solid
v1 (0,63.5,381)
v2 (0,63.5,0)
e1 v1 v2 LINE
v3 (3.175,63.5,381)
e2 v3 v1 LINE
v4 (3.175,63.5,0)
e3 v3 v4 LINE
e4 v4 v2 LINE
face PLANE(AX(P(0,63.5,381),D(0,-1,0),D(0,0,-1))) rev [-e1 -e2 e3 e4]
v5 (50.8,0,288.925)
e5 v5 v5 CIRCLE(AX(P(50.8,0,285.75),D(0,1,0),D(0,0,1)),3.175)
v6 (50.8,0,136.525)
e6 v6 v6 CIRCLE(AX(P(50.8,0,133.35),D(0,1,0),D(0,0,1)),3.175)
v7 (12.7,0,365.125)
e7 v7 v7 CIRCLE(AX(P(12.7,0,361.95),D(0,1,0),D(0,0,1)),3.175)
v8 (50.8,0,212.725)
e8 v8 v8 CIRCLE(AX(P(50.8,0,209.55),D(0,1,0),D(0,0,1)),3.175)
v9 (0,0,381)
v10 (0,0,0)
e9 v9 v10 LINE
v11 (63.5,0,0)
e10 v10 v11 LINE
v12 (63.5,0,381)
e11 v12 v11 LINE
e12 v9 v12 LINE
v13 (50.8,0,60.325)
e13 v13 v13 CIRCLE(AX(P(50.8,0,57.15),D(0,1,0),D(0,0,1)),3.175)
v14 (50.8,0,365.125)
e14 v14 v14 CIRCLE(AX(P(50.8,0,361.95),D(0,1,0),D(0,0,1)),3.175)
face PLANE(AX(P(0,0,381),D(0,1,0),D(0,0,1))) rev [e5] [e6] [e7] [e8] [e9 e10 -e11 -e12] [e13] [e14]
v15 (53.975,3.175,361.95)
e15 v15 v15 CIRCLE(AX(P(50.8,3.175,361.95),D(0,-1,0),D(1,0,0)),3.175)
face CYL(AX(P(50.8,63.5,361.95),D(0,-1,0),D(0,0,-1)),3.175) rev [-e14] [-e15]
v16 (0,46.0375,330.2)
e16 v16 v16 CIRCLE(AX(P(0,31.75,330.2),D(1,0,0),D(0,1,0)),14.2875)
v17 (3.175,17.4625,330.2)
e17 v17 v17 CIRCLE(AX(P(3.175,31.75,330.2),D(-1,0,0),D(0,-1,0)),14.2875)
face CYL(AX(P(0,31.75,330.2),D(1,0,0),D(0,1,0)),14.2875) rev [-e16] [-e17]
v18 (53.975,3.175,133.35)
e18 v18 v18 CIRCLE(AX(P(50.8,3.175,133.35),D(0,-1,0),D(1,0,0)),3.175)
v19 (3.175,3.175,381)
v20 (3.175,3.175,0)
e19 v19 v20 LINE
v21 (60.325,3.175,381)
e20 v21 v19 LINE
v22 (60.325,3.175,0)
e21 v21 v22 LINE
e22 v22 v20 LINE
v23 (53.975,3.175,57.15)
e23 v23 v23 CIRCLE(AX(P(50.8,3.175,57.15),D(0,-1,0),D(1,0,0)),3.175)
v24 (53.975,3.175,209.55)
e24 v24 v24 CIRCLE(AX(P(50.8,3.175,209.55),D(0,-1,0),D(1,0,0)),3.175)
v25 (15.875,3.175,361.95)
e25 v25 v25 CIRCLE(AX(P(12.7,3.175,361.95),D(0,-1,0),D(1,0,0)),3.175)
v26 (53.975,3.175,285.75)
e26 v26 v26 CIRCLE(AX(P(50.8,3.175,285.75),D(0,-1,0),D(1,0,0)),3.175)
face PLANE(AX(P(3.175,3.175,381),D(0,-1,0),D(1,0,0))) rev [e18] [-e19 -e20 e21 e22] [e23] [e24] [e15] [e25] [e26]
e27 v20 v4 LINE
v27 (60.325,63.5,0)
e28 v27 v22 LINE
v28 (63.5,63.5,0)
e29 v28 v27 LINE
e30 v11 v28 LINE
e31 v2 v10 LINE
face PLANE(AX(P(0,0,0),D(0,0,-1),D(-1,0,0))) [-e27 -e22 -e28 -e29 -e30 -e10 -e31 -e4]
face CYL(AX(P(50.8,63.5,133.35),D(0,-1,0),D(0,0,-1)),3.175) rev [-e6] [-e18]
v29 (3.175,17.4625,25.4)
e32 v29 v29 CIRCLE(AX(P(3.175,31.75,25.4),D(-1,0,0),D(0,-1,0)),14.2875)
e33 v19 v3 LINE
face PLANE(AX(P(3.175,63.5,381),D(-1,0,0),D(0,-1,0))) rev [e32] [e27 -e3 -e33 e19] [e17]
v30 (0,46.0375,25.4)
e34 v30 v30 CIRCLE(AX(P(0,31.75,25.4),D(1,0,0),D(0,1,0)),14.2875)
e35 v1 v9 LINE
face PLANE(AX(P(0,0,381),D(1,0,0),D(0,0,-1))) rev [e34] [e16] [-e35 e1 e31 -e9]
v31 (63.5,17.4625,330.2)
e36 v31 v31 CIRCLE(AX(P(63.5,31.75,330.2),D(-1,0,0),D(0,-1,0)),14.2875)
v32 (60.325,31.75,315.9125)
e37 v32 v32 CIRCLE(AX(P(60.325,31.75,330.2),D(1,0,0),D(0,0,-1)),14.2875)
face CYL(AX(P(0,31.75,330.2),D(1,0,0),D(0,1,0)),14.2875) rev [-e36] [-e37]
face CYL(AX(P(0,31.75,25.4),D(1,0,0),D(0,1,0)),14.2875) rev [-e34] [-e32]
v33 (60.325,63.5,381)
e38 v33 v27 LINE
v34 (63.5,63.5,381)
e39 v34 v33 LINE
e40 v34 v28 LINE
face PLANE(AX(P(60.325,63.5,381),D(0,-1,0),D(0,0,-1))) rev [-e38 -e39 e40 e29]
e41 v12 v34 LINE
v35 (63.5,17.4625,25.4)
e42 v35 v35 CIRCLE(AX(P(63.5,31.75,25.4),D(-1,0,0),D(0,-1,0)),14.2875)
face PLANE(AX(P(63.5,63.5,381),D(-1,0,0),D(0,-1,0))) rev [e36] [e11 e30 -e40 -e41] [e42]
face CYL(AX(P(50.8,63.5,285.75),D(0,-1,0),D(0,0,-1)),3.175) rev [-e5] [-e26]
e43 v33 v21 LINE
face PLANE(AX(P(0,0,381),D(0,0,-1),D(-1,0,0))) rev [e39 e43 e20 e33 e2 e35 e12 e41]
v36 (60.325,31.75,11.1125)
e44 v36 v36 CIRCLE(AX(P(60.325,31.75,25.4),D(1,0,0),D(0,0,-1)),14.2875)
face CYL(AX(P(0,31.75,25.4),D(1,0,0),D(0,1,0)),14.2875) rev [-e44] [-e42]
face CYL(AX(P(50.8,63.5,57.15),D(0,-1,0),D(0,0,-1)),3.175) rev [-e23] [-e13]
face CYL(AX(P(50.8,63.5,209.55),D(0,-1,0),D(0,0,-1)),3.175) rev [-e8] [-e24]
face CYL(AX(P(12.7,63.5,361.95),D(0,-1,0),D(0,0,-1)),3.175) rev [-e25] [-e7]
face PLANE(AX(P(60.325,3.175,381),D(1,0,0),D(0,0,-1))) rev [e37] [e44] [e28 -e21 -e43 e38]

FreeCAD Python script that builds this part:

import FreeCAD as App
import Part
import Sketcher
Q = App.Units.Quantity


def add_polygon(sketch, points):
    """Adds a closed chain of lines whose ends are joined by coincident constraints."""
    first, n = sketch.GeometryCount, len(points)
    for a, b in zip(points, points[1:] + points[:1]):
        sketch.addGeometry(Part.LineSegment(App.Vector(*a, 0), App.Vector(*b, 0)), False)
    for i in range(n):
        sketch.addConstraint(Sketcher.Constraint("Coincident", first + i, 2, first + (i + 1) % n, 1))

doc = App.newDocument("Part")
params = doc.addObject("Spreadsheet::Sheet", "Params")
for row, (alias, value) in enumerate([
    ("sketch1_width", "2.5 in"),
    ("sketch1_width2", "2.25 in"),
    ("sketch1_height", "2.375 in"),
    ("pad1_length", "15 in"),
    ("sketch2_diameter", "0.25 in"),
    ("sketch3_diameter", "1.125 in"),
], start=1):
    params.set(f"A{row}", alias)
    params.set(f"B{row}", "=" + value)
    params.setAlias(f"B{row}", alias)

body = doc.addObject("PartDesign::Body", "Body")

sketch1 = body.newObject("Sketcher::SketchObject", "Sketch")
sketch1.AttachmentSupport = (doc.getObject("XY_Plane"), [""])
sketch1.MapMode = "FlatFace"
add_polygon(sketch1, [(0, 0), (63.5, 0), (63.5, 63.5), (60.3, 63.5), (60.3, 3.2), (3.2, 3.2), (3.2, 63.5), (0, 63.5)])
sketch1.addConstraint([
    Sketcher.Constraint("Horizontal", 0),
    Sketcher.Constraint("Vertical", 1),
    Sketcher.Constraint("Horizontal", 2),
    Sketcher.Constraint("Vertical", 3),
    Sketcher.Constraint("Horizontal", 4),
    Sketcher.Constraint("Vertical", 5),
    Sketcher.Constraint("Horizontal", 6),
    Sketcher.Constraint("Vertical", 7),
    Sketcher.Constraint("Coincident", 7, 2, -1, 1),
    Sketcher.Constraint("Horizontal", 2, 2, 5, 2),
    Sketcher.Constraint("Equal", 2, 6),
    Sketcher.Constraint("Equal", 0, 1),
    Sketcher.Constraint("DistanceX", 0, 1, 0, 2, Q("2.5 in")),
    Sketcher.Constraint("DistanceX", 4, 2, 4, 1, Q("2.25 in")),
    Sketcher.Constraint("DistanceY", 3, 2, 3, 1, Q("2.375 in")),
])
sketch1.setExpression("Constraints[20]", "Params.sketch1_width")
sketch1.setExpression("Constraints[21]", "Params.sketch1_width2")
sketch1.setExpression("Constraints[22]", "Params.sketch1_height")
pad1 = body.newObject("PartDesign::Pad", "Pad")
pad1.Profile = sketch1
pad1.setExpression("Length", "Params.pad1_length")

sketch2 = body.newObject("Sketcher::SketchObject", "Sketch001")
sketch2.AttachmentSupport = (doc.getObject("XZ_Plane"), [""])
sketch2.MapMode = "FlatFace"
sketch2.addGeometry([
    Part.Circle(App.Vector(12.7, 361.9, 0), App.Vector(0, 0, 1), 3.2),
    Part.Circle(App.Vector(50.8, 361.9, 0), App.Vector(0, 0, 1), 3.2),
    Part.Circle(App.Vector(50.8, 285.8, 0), App.Vector(0, 0, 1), 3.2),
    Part.Circle(App.Vector(50.8, 209.6, 0), App.Vector(0, 0, 1), 3.2),
    Part.Circle(App.Vector(50.8, 133.3, 0), App.Vector(0, 0, 1), 3.2),
    Part.Circle(App.Vector(50.8, 57.1, 0), App.Vector(0, 0, 1), 3.2),
], False)
sketch2.addConstraint([
    Sketcher.Constraint("Equal", 0, 1),
    Sketcher.Constraint("Equal", 1, 2),
    Sketcher.Constraint("Equal", 2, 3),
    Sketcher.Constraint("Equal", 3, 4),
    Sketcher.Constraint("Equal", 4, 5),
    Sketcher.Constraint("Horizontal", 0, 3, 1, 3),
    Sketcher.Constraint("Vertical", 1, 3, 2, 3),
    Sketcher.Constraint("Vertical", 2, 3, 3, 3),
    Sketcher.Constraint("Vertical", 3, 3, 4, 3),
    Sketcher.Constraint("Vertical", 4, 3, 5, 3),
    Sketcher.Constraint("Diameter", 0, Q("0.25 in")),
    Sketcher.Constraint("DistanceX", -1, 1, 1, 3, Q("2 in")),
    Sketcher.Constraint("DistanceY", 2, 3, 1, 3, Q("3 in")),
    Sketcher.Constraint("DistanceY", 3, 3, 2, 3, Q("3 in")),
    Sketcher.Constraint("DistanceY", 4, 3, 3, 3, Q("3 in")),
    Sketcher.Constraint("DistanceY", 5, 3, 4, 3, Q("3 in")),
    Sketcher.Constraint("DistanceX", -1, 1, 0, 3, Q("0.5 in")),
    Sketcher.Constraint("DistanceY", -1, 1, 0, 3, Q("14.25 in")),
])
sketch2.setExpression("Constraints[10]", "Params.sketch2_diameter")
pocket1 = body.newObject("PartDesign::Pocket", "Pocket")
pocket1.Profile = sketch2
pocket1.Type = "ThroughAll"
pocket1.Midplane = True

sketch3 = body.newObject("Sketcher::SketchObject", "Sketch002")
sketch3.AttachmentSupport = (doc.getObject("YZ_Plane"), [""])
sketch3.MapMode = "FlatFace"
sketch3.AttachmentOffset = App.Placement(App.Vector(0, 0, 2.5 * 25.4), App.Rotation())
sketch3.addGeometry([
    Part.Circle(App.Vector(32, 25, 0), App.Vector(0, 0, 1), 14),
    Part.Circle(App.Vector(32, 330, 0), App.Vector(0, 0, 1), 14),
], False)
sketch3.addConstraint([
    Sketcher.Constraint("Equal", 0, 1),
    Sketcher.Constraint("Vertical", 0, 3, 1, 3),
    Sketcher.Constraint("Diameter", 0, Q("1.125 in")),
    Sketcher.Constraint("DistanceY", -1, 1, 0, 3, Q("1 in")),
    Sketcher.Constraint("DistanceY", -1, 1, 1, 3, Q("13 in")),
    Sketcher.Constraint("DistanceX", -1, 1, 0, 3, Q("1.25 in")),
])
sketch3.setExpression("Constraints[2]", "Params.sketch3_diameter")
pocket2 = body.newObject("PartDesign::Pocket", "Pocket001")
pocket2.Profile = sketch3
pocket2.Type = "ThroughAll"
pocket2.Midplane = True

doc.recompute()
